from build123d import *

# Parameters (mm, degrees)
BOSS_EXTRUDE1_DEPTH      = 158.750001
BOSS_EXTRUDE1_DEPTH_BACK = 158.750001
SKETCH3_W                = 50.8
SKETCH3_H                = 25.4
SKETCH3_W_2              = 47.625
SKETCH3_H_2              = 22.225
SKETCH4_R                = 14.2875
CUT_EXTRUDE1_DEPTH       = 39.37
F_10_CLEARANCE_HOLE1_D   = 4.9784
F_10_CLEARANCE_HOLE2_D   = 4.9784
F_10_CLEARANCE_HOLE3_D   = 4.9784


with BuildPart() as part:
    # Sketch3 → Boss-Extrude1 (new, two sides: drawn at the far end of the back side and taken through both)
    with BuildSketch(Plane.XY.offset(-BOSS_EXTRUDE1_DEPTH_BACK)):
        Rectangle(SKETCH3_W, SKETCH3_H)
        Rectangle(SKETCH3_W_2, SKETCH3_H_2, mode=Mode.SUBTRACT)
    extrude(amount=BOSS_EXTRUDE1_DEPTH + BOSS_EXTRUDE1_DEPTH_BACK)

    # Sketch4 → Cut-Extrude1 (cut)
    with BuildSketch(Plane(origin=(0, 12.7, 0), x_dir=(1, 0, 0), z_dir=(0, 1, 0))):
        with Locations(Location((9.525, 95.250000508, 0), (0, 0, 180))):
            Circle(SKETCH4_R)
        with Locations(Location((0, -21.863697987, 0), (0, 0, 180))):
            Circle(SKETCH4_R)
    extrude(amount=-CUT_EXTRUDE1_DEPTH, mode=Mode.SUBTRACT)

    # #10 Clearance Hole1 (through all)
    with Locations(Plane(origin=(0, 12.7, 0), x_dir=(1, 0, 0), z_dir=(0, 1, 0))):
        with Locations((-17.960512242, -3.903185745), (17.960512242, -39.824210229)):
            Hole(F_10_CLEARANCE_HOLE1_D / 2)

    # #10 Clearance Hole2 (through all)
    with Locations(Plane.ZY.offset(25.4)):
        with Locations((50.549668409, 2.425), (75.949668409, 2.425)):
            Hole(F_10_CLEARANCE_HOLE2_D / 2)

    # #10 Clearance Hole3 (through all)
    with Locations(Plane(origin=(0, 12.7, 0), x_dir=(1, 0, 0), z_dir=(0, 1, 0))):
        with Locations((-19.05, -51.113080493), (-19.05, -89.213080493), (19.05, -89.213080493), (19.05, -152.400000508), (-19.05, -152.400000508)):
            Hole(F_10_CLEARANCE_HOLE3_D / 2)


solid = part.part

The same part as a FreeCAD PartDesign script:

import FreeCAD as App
import Part
import Sketcher

V = App.Vector
Q = App.Units.Quantity

doc = App.newDocument("Part")
body = doc.addObject("PartDesign::Body", "Body")

# Sketch on XY plane
sketch1 = body.newObject("Sketcher::SketchObject", "Sketch")
sketch1.AttachmentSupport = (doc.getObject("XY_Plane"), [""])
sketch1.MapMode = "FlatFace"
sketch1.addGeometry([
    Part.LineSegment(V(-25, 13, 0), V(-25, -13, 0)),  # 0
    Part.LineSegment(V(-25, -13, 0), V(25, -13, 0)),  # 1
    Part.LineSegment(V(25, -13, 0), V(25, 13, 0)),  # 2
    Part.LineSegment(V(25, 13, 0), V(-25, 13, 0)),  # 3
    Part.LineSegment(V(24, -11, 0), V(-24, -11, 0)),  # 4
    Part.LineSegment(V(-24, -11, 0), V(-24, 11, 0)),  # 5
    Part.LineSegment(V(-24, 11, 0), V(24, 11, 0)),  # 6
    Part.LineSegment(V(24, 11, 0), V(24, -11, 0)),  # 7
], False)
sketch1.addConstraint([
    Sketcher.Constraint("Coincident", 0, 2, 1, 1),
    Sketcher.Constraint("Coincident", 1, 2, 2, 1),
    Sketcher.Constraint("Coincident", 2, 2, 3, 1),
    Sketcher.Constraint("Coincident", 3, 2, 0, 1),
    Sketcher.Constraint("Coincident", 4, 2, 5, 1),
    Sketcher.Constraint("Coincident", 5, 2, 6, 1),
    Sketcher.Constraint("Coincident", 6, 2, 7, 1),
    Sketcher.Constraint("Coincident", 7, 2, 4, 1),
    Sketcher.Constraint("Vertical", 0),
    Sketcher.Constraint("Horizontal", 1),
    Sketcher.Constraint("Vertical", 2),
    Sketcher.Constraint("Horizontal", 3),
    Sketcher.Constraint("Horizontal", 4),
    Sketcher.Constraint("Vertical", 5),
    Sketcher.Constraint("Horizontal", 6),
    Sketcher.Constraint("Vertical", 7),
    Sketcher.Constraint("Symmetric", 0, 2, 2, 2, -1, 1),
    Sketcher.Constraint("Symmetric", 4, 2, 6, 2, -1, 1),
    Sketcher.Constraint("DistanceX", 1, 1, 1, 2, Q("2 in")),
    Sketcher.Constraint("DistanceY", 0, 2, 0, 1, Q("1 in")),
    Sketcher.Constraint("DistanceX", 4, 2, 4, 1, Q("1.875 in")),
    Sketcher.Constraint("DistanceY", 5, 1, 5, 2, Q("0.875 in")),
])
pad1 = body.newObject("PartDesign::Pad", "Pad")
pad1.Profile = sketch1
pad1.Type = "TwoLengths"
pad1.Length = Q("6.25 in")
pad1.Length2 = Q("6.25 in")

# Sketch on XZ plane
sketch2 = body.newObject("Sketcher::SketchObject", "Sketch001")
sketch2.AttachmentSupport = (doc.getObject("XZ_Plane"), [""])
sketch2.MapMode = "FlatFace"
sketch2.AttachmentOffset = App.Placement(V(0, 0, -0.5 * 25.4), App.Rotation())
sketch2.addGeometry([
    Part.Circle(V(10, -95, 0), V(0, 0, 1), 14),
    Part.Circle(V(0, 22, 0), V(0, 0, 1), 14),
], False)
sketch2.addConstraint([
    Sketcher.Constraint("Equal", 0, 1),
    Sketcher.Constraint("PointOnObject", 1, 3, -2),
    Sketcher.Constraint("Diameter", 0, Q("1.125 in")),
    Sketcher.Constraint("DistanceY", 0, 3, -1, 1, Q("3.75 in")),
    Sketcher.Constraint("DistanceX", -1, 1, 0, 3, Q("0.375 in")),
    Sketcher.Constraint("DistanceY", 0, 3, 1, 3, Q("117.113698 mm")),
])
pocket1 = body.newObject("PartDesign::Pocket", "Pocket")
pocket1.Profile = sketch2
pocket1.Length = Q("1.55 in")
pocket1.Reversed = True

# Sketch on XZ plane
sketch3 = body.newObject("Sketcher::SketchObject", "Sketch002")
sketch3.AttachmentSupport = (doc.getObject("XZ_Plane"), [""])
sketch3.MapMode = "FlatFace"
sketch3.AttachmentOffset = App.Placement(V(0, 0, -0.5 * 25.4), App.Rotation())
sketch3.addGeometry([
    Part.Circle(V(-18, 3.9, 0), V(0, 0, 1), 2.5),
    Part.Circle(V(18, 39.8, 0), V(0, 0, 1), 2.5),
], False)
sketch3.addConstraint([
    Sketcher.Constraint("Equal", 0, 1),
    Sketcher.Constraint("Diameter", 0, Q("0.196 in")),
    Sketcher.Constraint("DistanceY", -1, 1, 1, 3, Q("39.82421 mm")),
    Sketcher.Constraint("DistanceX", 0, 3, -1, 1, Q("17.960512 mm")),
    Sketcher.Constraint("DistanceY", -1, 1, 0, 3, Q("3.903186 mm")),
    Sketcher.Constraint("DistanceX", -1, 1, 1, 3, Q("17.960512 mm")),
])
doc.recompute()
hole = body.newObject("PartDesign::Hole", "Hole")
hole.Profile = sketch3
hole.ThreadType = "None"
hole.Diameter = Q("0.196 in")
hole.DepthType = "ThroughAll"
hole.Reversed = True

# Sketch on YZ plane
sketch4 = body.newObject("Sketcher::SketchObject", "Sketch003")
sketch4.AttachmentSupport = (doc.getObject("YZ_Plane"), [""])
sketch4.MapMode = "FlatFace"
sketch4.AttachmentOffset = App.Placement(V(0, 0, -1 * 25.4), App.Rotation())
sketch4.addGeometry([
    Part.Circle(V(2.4, 50.5, 0), V(0, 0, 1), 2.5),
    Part.Circle(V(2.4, 75.9, 0), V(0, 0, 1), 2.5),
], False)
sketch4.addConstraint([
    Sketcher.Constraint("Equal", 0, 1),
    Sketcher.Constraint("Vertical", 0, 3, 1, 3),
    Sketcher.Constraint("Diameter", 0, Q("0.196 in")),
    Sketcher.Constraint("DistanceY", 0, 3, 1, 3, Q("1 in")),
    Sketcher.Constraint("DistanceX", -1, 1, 0, 3, Q("2.425 mm")),
    Sketcher.Constraint("DistanceY", -1, 1, 0, 3, Q("50.549668 mm")),
])
doc.recompute()
hole2 = body.newObject("PartDesign::Hole", "Hole001")
hole2.Profile = sketch4
hole2.ThreadType = "None"
hole2.Diameter = Q("0.196 in")
hole2.DepthType = "ThroughAll"
hole2.Reversed = True

# Sketch on XZ plane
sketch5 = body.newObject("Sketcher::SketchObject", "Sketch004")
sketch5.AttachmentSupport = (doc.getObject("XZ_Plane"), [""])
sketch5.MapMode = "FlatFace"
sketch5.AttachmentOffset = App.Placement(V(0, 0, -0.5 * 25.4), App.Rotation())
sketch5.addGeometry([
    Part.Circle(V(-19.1, 51.1, 0), V(0, 0, 1), 2.5),  # 0
    Part.Circle(V(-19.1, 89.2, 0), V(0, 0, 1), 2.5),  # 1
    Part.Circle(V(19.1, 89.2, 0), V(0, 0, 1), 2.5),  # 2
    Part.Circle(V(19.1, 152.4, 0), V(0, 0, 1), 2.5),  # 3
    Part.Circle(V(-19.1, 152.4, 0), V(0, 0, 1), 2.5),  # 4
], False)
sketch5.addConstraint([
    Sketcher.Constraint("Equal", 0, 1),
    Sketcher.Constraint("Equal", 1, 2),
    Sketcher.Constraint("Equal", 2, 3),
    Sketcher.Constraint("Equal", 3, 4),
    Sketcher.Constraint("Symmetric", 1, 3, 2, 3, -2),
    Sketcher.Constraint("Symmetric", 3, 3, 4, 3, -2),
    Sketcher.Constraint("Vertical", 0, 3, 1, 3),
    Sketcher.Constraint("Vertical", 2, 3, 3, 3),
    Sketcher.Constraint("Diameter", 0, Q("0.196 in")),
    Sketcher.Constraint("DistanceY", -1, 1, 3, 3, Q("6 in")),
    Sketcher.Constraint("DistanceY", 0, 3, 1, 3, Q("1.5 in")),
    Sketcher.Constraint("DistanceX", 1, 3, 2, 3, Q("1.5 in")),
    Sketcher.Constraint("DistanceY", -1, 1, 0, 3, Q("51.11308 mm")),
])
doc.recompute()
hole3 = body.newObject("PartDesign::Hole", "Hole002")
hole3.Profile = sketch5
hole3.ThreadType = "None"
hole3.Diameter = Q("0.196 in")
hole3.DepthType = "ThroughAll"
hole3.Reversed = True

doc.recompute()
